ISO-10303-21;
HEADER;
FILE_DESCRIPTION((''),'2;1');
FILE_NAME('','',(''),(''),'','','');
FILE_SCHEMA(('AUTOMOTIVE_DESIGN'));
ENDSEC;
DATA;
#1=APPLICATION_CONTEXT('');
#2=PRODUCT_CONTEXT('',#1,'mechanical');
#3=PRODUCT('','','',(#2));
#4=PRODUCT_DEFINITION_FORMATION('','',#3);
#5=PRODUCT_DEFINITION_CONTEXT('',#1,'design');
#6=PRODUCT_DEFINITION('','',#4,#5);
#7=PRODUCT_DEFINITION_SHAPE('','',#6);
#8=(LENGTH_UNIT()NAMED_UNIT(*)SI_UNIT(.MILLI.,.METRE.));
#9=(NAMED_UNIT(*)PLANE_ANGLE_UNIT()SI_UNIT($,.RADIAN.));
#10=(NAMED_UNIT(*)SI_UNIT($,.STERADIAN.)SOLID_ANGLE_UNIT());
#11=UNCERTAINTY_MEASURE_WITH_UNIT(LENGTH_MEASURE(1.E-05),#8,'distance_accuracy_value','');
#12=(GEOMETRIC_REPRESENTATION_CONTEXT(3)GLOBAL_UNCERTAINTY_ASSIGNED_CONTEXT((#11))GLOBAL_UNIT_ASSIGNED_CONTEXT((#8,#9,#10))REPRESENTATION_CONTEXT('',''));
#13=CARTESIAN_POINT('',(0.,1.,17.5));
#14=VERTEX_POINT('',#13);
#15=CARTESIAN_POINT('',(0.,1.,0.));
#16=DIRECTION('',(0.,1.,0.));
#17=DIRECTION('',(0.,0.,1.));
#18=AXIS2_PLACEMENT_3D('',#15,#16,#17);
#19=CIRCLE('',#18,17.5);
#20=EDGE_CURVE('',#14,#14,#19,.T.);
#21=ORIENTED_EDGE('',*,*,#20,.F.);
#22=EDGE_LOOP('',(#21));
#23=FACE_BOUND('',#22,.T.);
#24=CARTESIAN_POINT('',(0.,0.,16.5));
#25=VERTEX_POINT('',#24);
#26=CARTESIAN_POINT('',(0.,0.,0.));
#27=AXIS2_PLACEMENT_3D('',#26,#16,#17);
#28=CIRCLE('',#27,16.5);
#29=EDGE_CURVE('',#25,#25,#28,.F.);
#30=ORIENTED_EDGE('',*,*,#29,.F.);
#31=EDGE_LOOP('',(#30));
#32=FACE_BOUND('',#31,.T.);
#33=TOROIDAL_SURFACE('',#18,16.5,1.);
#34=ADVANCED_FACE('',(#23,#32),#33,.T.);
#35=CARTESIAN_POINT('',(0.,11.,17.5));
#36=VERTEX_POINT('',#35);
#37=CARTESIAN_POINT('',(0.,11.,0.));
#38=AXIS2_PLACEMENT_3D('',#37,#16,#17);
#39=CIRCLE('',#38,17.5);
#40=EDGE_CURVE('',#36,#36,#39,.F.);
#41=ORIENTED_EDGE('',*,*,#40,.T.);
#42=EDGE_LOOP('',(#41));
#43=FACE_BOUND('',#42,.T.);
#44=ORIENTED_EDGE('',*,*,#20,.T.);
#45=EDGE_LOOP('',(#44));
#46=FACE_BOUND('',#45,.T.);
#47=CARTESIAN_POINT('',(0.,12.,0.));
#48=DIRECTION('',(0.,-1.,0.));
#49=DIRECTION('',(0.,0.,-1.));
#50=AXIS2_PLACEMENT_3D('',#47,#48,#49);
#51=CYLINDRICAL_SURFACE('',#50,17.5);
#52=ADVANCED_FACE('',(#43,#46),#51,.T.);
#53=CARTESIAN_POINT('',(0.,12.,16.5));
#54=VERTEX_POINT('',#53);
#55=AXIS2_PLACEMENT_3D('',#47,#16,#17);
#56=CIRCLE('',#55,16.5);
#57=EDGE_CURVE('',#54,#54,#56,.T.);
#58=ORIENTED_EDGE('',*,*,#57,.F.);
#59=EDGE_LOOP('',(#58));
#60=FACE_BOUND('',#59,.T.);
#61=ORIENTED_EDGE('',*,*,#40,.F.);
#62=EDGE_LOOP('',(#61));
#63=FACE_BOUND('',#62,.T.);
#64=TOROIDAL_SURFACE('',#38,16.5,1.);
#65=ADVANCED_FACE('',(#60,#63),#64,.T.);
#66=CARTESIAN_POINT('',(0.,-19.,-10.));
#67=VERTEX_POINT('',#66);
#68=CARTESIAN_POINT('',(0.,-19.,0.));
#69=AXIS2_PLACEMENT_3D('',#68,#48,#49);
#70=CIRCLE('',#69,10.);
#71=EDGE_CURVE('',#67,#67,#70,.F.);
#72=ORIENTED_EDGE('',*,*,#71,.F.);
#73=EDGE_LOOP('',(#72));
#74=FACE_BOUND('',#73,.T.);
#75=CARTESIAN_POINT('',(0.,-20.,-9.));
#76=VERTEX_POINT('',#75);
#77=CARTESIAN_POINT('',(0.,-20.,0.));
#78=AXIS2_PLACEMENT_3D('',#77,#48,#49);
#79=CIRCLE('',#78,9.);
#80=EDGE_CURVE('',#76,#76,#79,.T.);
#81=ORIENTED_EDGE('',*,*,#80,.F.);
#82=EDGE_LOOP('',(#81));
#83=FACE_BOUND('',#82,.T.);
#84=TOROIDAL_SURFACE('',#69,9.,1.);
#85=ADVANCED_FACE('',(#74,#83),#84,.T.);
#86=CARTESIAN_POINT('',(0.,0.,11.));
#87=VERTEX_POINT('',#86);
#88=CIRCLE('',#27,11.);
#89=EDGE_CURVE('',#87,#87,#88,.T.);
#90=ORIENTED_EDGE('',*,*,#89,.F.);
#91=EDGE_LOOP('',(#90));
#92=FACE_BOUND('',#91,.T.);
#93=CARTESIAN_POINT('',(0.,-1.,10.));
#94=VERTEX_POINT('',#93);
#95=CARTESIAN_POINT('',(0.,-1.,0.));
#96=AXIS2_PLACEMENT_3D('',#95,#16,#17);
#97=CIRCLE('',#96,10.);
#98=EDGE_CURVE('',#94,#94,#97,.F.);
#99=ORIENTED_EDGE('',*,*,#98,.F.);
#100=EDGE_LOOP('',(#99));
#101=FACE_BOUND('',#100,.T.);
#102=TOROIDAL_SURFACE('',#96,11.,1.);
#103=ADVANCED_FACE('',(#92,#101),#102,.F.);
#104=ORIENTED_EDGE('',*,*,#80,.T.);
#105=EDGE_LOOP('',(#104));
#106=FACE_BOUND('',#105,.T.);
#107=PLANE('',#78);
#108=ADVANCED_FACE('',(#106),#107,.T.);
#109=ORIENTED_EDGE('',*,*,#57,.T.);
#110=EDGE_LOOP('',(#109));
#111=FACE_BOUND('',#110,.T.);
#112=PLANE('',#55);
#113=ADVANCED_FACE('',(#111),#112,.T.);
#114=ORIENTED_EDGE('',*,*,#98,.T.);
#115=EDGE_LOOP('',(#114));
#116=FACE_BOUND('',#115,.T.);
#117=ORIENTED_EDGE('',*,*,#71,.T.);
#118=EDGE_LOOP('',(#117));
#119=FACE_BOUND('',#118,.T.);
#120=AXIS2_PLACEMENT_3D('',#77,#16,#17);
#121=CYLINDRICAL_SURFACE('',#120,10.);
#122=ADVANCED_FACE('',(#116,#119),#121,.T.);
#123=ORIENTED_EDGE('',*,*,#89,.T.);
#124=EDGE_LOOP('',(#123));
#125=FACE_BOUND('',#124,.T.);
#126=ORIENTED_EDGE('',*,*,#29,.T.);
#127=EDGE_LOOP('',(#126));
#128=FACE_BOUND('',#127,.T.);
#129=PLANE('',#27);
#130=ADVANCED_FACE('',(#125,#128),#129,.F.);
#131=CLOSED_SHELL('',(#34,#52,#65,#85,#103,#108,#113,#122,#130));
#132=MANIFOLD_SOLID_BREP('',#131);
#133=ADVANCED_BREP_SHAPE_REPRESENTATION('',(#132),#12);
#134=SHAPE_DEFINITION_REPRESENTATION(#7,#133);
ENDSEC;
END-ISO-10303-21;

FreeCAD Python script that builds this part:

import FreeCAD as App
import Part
import Sketcher
from FreeCAD import Vector


def edges_at(feature, points):
    """Names of the edges that pass closest to the given points."""
    edges = feature.Shape.Edges
    near = lambda p: min(range(len(edges)), key=lambda i: edges[i].distToShape(Part.Vertex(*p))[0])
    return sorted({f"Edge{near(p) + 1}" for p in points})

doc = App.newDocument("Part")
body = doc.addObject("PartDesign::Body", "Body")

sketch1 = doc.addObject("Sketcher::SketchObject", "Sketch")
body.addObject(sketch1)
sketch1.AttachmentSupport = (doc.XZ_Plane, [""])
sketch1.MapMode = "FlatFace"
sketch1.addGeometry(Part.Circle(Vector(0, 0, 0), Vector(0, 0, 1), 18), False)
sketch1.addConstraint([
    Sketcher.Constraint("Coincident", 0, 3, -1, 1),
    Sketcher.Constraint("Diameter", 0, 35.0),
])
pad1 = doc.addObject("PartDesign::Pad", "Pad")
body.addObject(pad1)
pad1.Profile = sketch1
pad1.Length = 12
pad1.Reversed = True

sketch2 = doc.addObject("Sketcher::SketchObject", "Sketch001")
body.addObject(sketch2)
sketch2.AttachmentSupport = (doc.XZ_Plane, [""])
sketch2.MapMode = "FlatFace"
sketch2.addGeometry(Part.Circle(Vector(0, 0, 0), Vector(0, 0, 1), 10), False)
sketch2.addConstraint([
    Sketcher.Constraint("Coincident", 0, 3, -1, 1),
    Sketcher.Constraint("Diameter", 0, 20.0),
])
pad2 = doc.addObject("PartDesign::Pad", "Pad001")
body.addObject(pad2)
pad2.Profile = sketch2
pad2.Length = 20
doc.recompute()

fillet = doc.addObject("PartDesign::Fillet", "Fillet")
body.addObject(fillet)
fillet.Base = (pad2, edges_at(pad2, [
    (-17.5, 0, 0),
    (-17.5, 12, 0),
    (-10, 0, 0),
    (-10, -20, 0),
]))
fillet.Radius = 1

doc.recompute()
